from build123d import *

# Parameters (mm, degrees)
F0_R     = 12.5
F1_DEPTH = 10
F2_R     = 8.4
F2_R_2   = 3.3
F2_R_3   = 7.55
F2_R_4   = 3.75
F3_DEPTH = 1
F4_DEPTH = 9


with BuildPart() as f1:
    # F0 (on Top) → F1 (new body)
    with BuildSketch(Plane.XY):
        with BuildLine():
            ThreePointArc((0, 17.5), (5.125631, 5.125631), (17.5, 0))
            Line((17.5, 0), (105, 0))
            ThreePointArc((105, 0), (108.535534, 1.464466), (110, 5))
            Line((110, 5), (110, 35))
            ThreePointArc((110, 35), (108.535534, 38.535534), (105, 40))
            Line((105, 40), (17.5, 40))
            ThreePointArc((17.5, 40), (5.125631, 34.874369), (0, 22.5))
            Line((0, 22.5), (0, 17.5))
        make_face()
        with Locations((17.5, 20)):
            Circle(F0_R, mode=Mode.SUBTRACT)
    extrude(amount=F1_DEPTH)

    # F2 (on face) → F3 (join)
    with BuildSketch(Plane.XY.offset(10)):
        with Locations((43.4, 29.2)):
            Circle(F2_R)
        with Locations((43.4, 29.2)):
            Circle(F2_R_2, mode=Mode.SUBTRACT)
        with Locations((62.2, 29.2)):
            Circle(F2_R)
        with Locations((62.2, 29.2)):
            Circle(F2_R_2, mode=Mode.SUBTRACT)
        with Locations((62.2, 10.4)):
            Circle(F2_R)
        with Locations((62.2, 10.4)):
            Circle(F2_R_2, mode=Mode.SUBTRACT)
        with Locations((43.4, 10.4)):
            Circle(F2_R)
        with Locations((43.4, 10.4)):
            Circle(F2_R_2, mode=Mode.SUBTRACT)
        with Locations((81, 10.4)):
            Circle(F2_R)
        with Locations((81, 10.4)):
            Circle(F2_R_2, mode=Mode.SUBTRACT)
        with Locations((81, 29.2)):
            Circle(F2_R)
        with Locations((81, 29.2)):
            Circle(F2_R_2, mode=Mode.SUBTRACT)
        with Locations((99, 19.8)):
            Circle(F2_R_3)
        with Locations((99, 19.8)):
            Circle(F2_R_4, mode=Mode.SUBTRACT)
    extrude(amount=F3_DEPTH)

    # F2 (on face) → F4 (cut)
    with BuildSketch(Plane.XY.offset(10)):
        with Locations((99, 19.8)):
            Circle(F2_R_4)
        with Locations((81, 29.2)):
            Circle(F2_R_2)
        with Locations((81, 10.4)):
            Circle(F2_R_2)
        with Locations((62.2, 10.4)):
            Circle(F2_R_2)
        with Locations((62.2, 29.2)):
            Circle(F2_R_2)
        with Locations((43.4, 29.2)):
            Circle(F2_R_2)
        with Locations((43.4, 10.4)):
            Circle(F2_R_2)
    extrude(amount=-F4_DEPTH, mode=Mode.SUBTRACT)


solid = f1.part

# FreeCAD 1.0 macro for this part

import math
import FreeCAD as App
import Part
import Sketcher

V = App.Vector
Q = App.Units.Quantity

doc = App.newDocument("Part")
body = doc.addObject("PartDesign::Body", "Body")

# Sketch on XY plane
sketch1 = body.newObject("Sketcher::SketchObject", "Sketch")
sketch1.AttachmentSupport = (doc.getObject("XY_Plane"), [""])
sketch1.MapMode = "FlatFace"
sketch1.addGeometry(Part.ArcOfCircle(Part.Circle(V(17.5, 17.5, 0), V(0, 0, 1), 17.5), math.radians(180), math.radians(270)), False)
sketch1.addGeometry(Part.LineSegment(V(17.5, 0, 0), V(105, 0, 0)), False)
sketch1.addGeometry(Part.ArcOfCircle(Part.Circle(V(105, 5, 0), V(0, 0, 1), 5), math.radians(-90), math.radians(0)), False)
sketch1.addGeometry(Part.LineSegment(V(110, 5, 0), V(110, 35, 0)), False)
sketch1.addGeometry(Part.ArcOfCircle(Part.Circle(V(105, 35, 0), V(0, 0, 1), 5), math.radians(0), math.radians(90)), False)
sketch1.addGeometry(Part.LineSegment(V(105, 40, 0), V(17.5, 40, 0)), False)
sketch1.addGeometry(Part.ArcOfCircle(Part.Circle(V(17.5, 22.5, 0), V(0, 0, 1), 17.5), math.radians(90), math.radians(180)), False)
sketch1.addGeometry(Part.LineSegment(V(0, 22.5, 0), V(0, 17.5, 0)), False)
sketch1.addGeometry(Part.Circle(V(17.5, 20, 0), V(0, 0, 1), 12.5), False)
sketch1.addConstraint(Sketcher.Constraint("Tangent", 0, 2, 1, 1))
sketch1.addConstraint(Sketcher.Constraint("Tangent", 1, 2, 2, 1))
sketch1.addConstraint(Sketcher.Constraint("Tangent", 2, 2, 3, 1))
sketch1.addConstraint(Sketcher.Constraint("Tangent", 3, 2, 4, 1))
sketch1.addConstraint(Sketcher.Constraint("Tangent", 4, 2, 5, 1))
sketch1.addConstraint(Sketcher.Constraint("Tangent", 5, 2, 6, 1))
sketch1.addConstraint(Sketcher.Constraint("Tangent", 6, 2, 7, 1))
sketch1.addConstraint(Sketcher.Constraint("Tangent", 7, 2, 0, 1))
sketch1.addConstraint(Sketcher.Constraint("Horizontal", 1))
sketch1.addConstraint(Sketcher.Constraint("Vertical", 3))
sketch1.addConstraint(Sketcher.Constraint("Horizontal", 5))
sketch1.addConstraint(Sketcher.Constraint("Vertical", 7))
sketch1.addConstraint(Sketcher.Constraint("Equal", 2, 4))
sketch1.addConstraint(Sketcher.Constraint("Equal", 0, 6))
sketch1.addConstraint(Sketcher.Constraint("PointOnObject", 0, 2, -1))
sketch1.addConstraint(Sketcher.Constraint("PointOnObject", 6, 2, -2))
sketch1.addConstraint(Sketcher.Constraint("Vertical", 6, 3, 8, 3))
sketch1.addConstraint(Sketcher.Constraint("Diameter", 8, Q("25 mm")))
sketch1.addConstraint(Sketcher.Constraint("Radius", 2, Q("5 mm")))
sketch1.addConstraint(Sketcher.Constraint("Radius", 0, Q("17.499999 mm")))
sketch1.addConstraint(Sketcher.Constraint("DistanceY", 3, 1, 3, 2, Q("30 mm")))
sketch1.addConstraint(Sketcher.Constraint("DistanceX", 1, 1, 1, 2, Q("87.5 mm")))
sketch1.addConstraint(Sketcher.Constraint("DistanceY", -1, 1, 8, 3, Q("20 mm")))
pad1 = body.newObject("PartDesign::Pad", "Pad")
pad1.Profile = sketch1
pad1.Length = 10

# Sketch on XY plane
sketch2 = body.newObject("Sketcher::SketchObject", "Sketch001")
sketch2.AttachmentSupport = (doc.getObject("XY_Plane"), [""])
sketch2.MapMode = "FlatFace"
sketch2.AttachmentOffset = App.Placement(V(0, 0, 10), App.Rotation())
sketch2.addGeometry(Part.Circle(V(43.4, 29.2, 0), V(0, 0, 1), 8.4), False)
sketch2.addGeometry(Part.Circle(V(43.4, 29.2, 0), V(0, 0, 1), 3.3), False)
sketch2.addGeometry(Part.Circle(V(62.2, 29.2, 0), V(0, 0, 1), 8.4), False)
sketch2.addGeometry(Part.Circle(V(62.2, 29.2, 0), V(0, 0, 1), 3.3), False)
sketch2.addGeometry(Part.Circle(V(62.2, 10.4, 0), V(0, 0, 1), 8.4), False)
sketch2.addGeometry(Part.Circle(V(62.2, 10.4, 0), V(0, 0, 1), 3.3), False)
sketch2.addGeometry(Part.Circle(V(43.4, 10.4, 0), V(0, 0, 1), 8.4), False)
sketch2.addGeometry(Part.Circle(V(43.4, 10.4, 0), V(0, 0, 1), 3.3), False)
sketch2.addGeometry(Part.Circle(V(81, 10.4, 0), V(0, 0, 1), 8.4), False)
sketch2.addGeometry(Part.Circle(V(81, 10.4, 0), V(0, 0, 1), 3.3), False)
sketch2.addGeometry(Part.Circle(V(81, 29.2, 0), V(0, 0, 1), 8.4), False)
sketch2.addGeometry(Part.Circle(V(81, 29.2, 0), V(0, 0, 1), 3.3), False)
sketch2.addGeometry(Part.Circle(V(99, 19.8, 0), V(0, 0, 1), 7.5), False)
sketch2.addGeometry(Part.Circle(V(99, 19.8, 0), V(0, 0, 1), 3.8), False)
sketch2.addConstraint(Sketcher.Constraint("Coincident", 1, 3, 0, 3))
sketch2.addConstraint(Sketcher.Constraint("Coincident", 3, 3, 2, 3))
sketch2.addConstraint(Sketcher.Constraint("Coincident", 5, 3, 4, 3))
sketch2.addConstraint(Sketcher.Constraint("Coincident", 7, 3, 6, 3))
sketch2.addConstraint(Sketcher.Constraint("Coincident", 9, 3, 8, 3))
sketch2.addConstraint(Sketcher.Constraint("Coincident", 11, 3, 10, 3))
sketch2.addConstraint(Sketcher.Constraint("Coincident", 13, 3, 12, 3))
sketch2.addConstraint(Sketcher.Constraint("Equal", 0, 2))
sketch2.addConstraint(Sketcher.Constraint("Equal", 1, 3))
sketch2.addConstraint(Sketcher.Constraint("Equal", 2, 4))
sketch2.addConstraint(Sketcher.Constraint("Equal", 3, 5))
sketch2.addConstraint(Sketcher.Constraint("Equal", 4, 6))
sketch2.addConstraint(Sketcher.Constraint("Equal", 5, 7))
sketch2.addConstraint(Sketcher.Constraint("Equal", 6, 8))
sketch2.addConstraint(Sketcher.Constraint("Equal", 7, 9))
sketch2.addConstraint(Sketcher.Constraint("Equal", 8, 10))
sketch2.addConstraint(Sketcher.Constraint("Equal", 9, 11))
sketch2.addConstraint(Sketcher.Constraint("Horizontal", 1, 3, 2, 3))
sketch2.addConstraint(Sketcher.Constraint("Horizontal", 5, 3, 6, 3))
sketch2.addConstraint(Sketcher.Constraint("Horizontal", 7, 3, 8, 3))
sketch2.addConstraint(Sketcher.Constraint("Horizontal", 3, 3, 10, 3))
sketch2.addConstraint(Sketcher.Constraint("Vertical", 3, 3, 4, 3))
sketch2.addConstraint(Sketcher.Constraint("Vertical", 1, 3, 6, 3))
sketch2.addConstraint(Sketcher.Constraint("Vertical", 9, 3, 10, 3))
sketch2.addConstraint(Sketcher.Constraint("Diameter", 0, Q("16.8 mm")))
sketch2.addConstraint(Sketcher.Constraint("Diameter", 1, Q("6.6 mm")))
sketch2.addConstraint(Sketcher.Constraint("Diameter", 12, Q("15.1 mm")))
sketch2.addConstraint(Sketcher.Constraint("Diameter", 13, Q("7.5 mm")))
sketch2.addConstraint(Sketcher.Constraint("DistanceX", -1, 1, 8, 3, Q("81 mm")))
sketch2.addConstraint(Sketcher.Constraint("DistanceX", -1, 1, 12, 3, Q("99 mm")))
sketch2.addConstraint(Sketcher.Constraint("DistanceX", -1, 1, 0, 3, Q("43.4 mm")))
sketch2.addConstraint(Sketcher.Constraint("DistanceY", -1, 1, 0, 3, Q("29.2 mm")))
sketch2.addConstraint(Sketcher.Constraint("DistanceX", -1, 1, 2, 3, Q("62.2 mm")))
sketch2.addConstraint(Sketcher.Constraint("DistanceY", -1, 1, 4, 3, Q("10.4 mm")))
sketch2.addConstraint(Sketcher.Constraint("DistanceY", -1, 1, 12, 3, Q("19.8 mm")))
pad2 = body.newObject("PartDesign::Pad", "Pad001")
pad2.Profile = sketch2
pad2.Length = 1

# Sketch on XY plane
sketch3 = body.newObject("Sketcher::SketchObject", "Sketch002")
sketch3.AttachmentSupport = (doc.getObject("XY_Plane"), [""])
sketch3.MapMode = "FlatFace"
sketch3.AttachmentOffset = App.Placement(V(0, 0, 10), App.Rotation())
sketch3.addGeometry(Part.Circle(V(99, 19.8, 0), V(0, 0, 1), 3.8), False)
sketch3.addGeometry(Part.Circle(V(81, 29.2, 0), V(0, 0, 1), 3.3), False)
sketch3.addGeometry(Part.Circle(V(81, 10.4, 0), V(0, 0, 1), 3.3), False)
sketch3.addGeometry(Part.Circle(V(62.2, 10.4, 0), V(0, 0, 1), 3.3), False)
sketch3.addGeometry(Part.Circle(V(62.2, 29.2, 0), V(0, 0, 1), 3.3), False)
sketch3.addGeometry(Part.Circle(V(43.4, 29.2, 0), V(0, 0, 1), 3.3), False)
sketch3.addGeometry(Part.Circle(V(43.4, 10.4, 0), V(0, 0, 1), 3.3), False)
sketch3.addConstraint(Sketcher.Constraint("Equal", 1, 2))
sketch3.addConstraint(Sketcher.Constraint("Equal", 2, 3))
sketch3.addConstraint(Sketcher.Constraint("Equal", 3, 4))
sketch3.addConstraint(Sketcher.Constraint("Equal", 4, 5))
sketch3.addConstraint(Sketcher.Constraint("Equal", 5, 6))
sketch3.addConstraint(Sketcher.Constraint("Horizontal", 2, 3, 3, 3))
sketch3.addConstraint(Sketcher.Constraint("Horizontal", 1, 3, 4, 3))
sketch3.addConstraint(Sketcher.Constraint("Horizontal", 4, 3, 5, 3))
sketch3.addConstraint(Sketcher.Constraint("Horizontal", 3, 3, 6, 3))
sketch3.addConstraint(Sketcher.Constraint("Vertical", 1, 3, 2, 3))
sketch3.addConstraint(Sketcher.Constraint("Vertical", 3, 3, 4, 3))
sketch3.addConstraint(Sketcher.Constraint("Vertical", 5, 3, 6, 3))
sketch3.addConstraint(Sketcher.Constraint("Diameter", 0, Q("7.5 mm")))
sketch3.addConstraint(Sketcher.Constraint("Diameter", 1, Q("6.6 mm")))
sketch3.addConstraint(Sketcher.Constraint("DistanceX", -1, 1, 0, 3, Q("99 mm")))
sketch3.addConstraint(Sketcher.Constraint("DistanceX", -1, 1, 1, 3, Q("81 mm")))
sketch3.addConstraint(Sketcher.Constraint("DistanceY", -1, 1, 0, 3, Q("19.8 mm")))
sketch3.addConstraint(Sketcher.Constraint("DistanceY", -1, 1, 1, 3, Q("29.2 mm")))
sketch3.addConstraint(Sketcher.Constraint("DistanceY", -1, 1, 2, 3, Q("10.4 mm")))
sketch3.addConstraint(Sketcher.Constraint("DistanceX", -1, 1, 3, 3, Q("62.2 mm")))
sketch3.addConstraint(Sketcher.Constraint("DistanceX", -1, 1, 5, 3, Q("43.4 mm")))
pocket1 = body.newObject("PartDesign::Pocket", "Pocket")
pocket1.Profile = sketch3
pocket1.Length = 9

doc.recompute()
